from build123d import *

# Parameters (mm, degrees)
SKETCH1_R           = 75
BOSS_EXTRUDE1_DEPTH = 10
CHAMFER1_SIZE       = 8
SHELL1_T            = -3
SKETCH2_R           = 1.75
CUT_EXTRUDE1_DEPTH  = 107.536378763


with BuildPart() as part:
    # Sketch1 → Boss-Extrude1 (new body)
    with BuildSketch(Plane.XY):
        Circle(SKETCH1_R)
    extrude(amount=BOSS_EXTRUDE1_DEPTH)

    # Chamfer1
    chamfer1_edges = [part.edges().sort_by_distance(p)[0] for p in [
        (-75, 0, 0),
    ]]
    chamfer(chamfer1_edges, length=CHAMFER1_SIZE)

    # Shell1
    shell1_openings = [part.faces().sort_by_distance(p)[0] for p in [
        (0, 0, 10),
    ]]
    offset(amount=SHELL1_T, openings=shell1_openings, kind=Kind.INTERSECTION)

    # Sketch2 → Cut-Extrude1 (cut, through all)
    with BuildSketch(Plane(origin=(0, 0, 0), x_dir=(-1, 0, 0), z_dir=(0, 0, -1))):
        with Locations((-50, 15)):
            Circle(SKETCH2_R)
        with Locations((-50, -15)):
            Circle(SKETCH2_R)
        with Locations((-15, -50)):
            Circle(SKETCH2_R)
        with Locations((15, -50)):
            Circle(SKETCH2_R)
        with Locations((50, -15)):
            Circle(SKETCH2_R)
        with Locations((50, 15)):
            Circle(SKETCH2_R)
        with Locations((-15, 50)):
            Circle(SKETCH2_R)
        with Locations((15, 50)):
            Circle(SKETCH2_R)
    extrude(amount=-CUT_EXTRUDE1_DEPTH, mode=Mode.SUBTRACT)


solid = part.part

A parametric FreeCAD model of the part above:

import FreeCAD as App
import Part
import Sketcher

V = App.Vector
Q = App.Units.Quantity


def edges_at(feature, points):
    """Names of the edges that pass closest to the given points."""
    edges = feature.Shape.Edges
    near = lambda p: min(range(len(edges)), key=lambda i: edges[i].distToShape(Part.Vertex(*p))[0])
    return sorted({f"Edge{near(p) + 1}" for p in points})


def faces_at(feature, points):
    """Names of the faces that lie closest to the given points."""
    faces = feature.Shape.Faces
    near = lambda p: min(range(len(faces)), key=lambda i: faces[i].distToShape(Part.Vertex(*p))[0])
    return sorted({f"Face{near(p) + 1}" for p in points})

doc = App.newDocument("Part")
params = doc.addObject("Spreadsheet::Sheet", "Params")
for row, (alias, value) in enumerate([
    ("sketch1_diameter", "150 mm"),
    ("pad1_length", "10 mm"),
    ("chamfer_size", "8 mm"),
    ("thickness_wall", "3 mm"),
    ("sketch2_diameter", "3.5 mm"),
], start=1):
    params.set(f"A{row}", alias)
    params.set(f"B{row}", "=" + value)
    params.setAlias(f"B{row}", alias)

body = doc.addObject("PartDesign::Body", "Body")

sketch1 = body.newObject("Sketcher::SketchObject", "Sketch")
sketch1.AttachmentSupport = (doc.getObject("XY_Plane"), [""])
sketch1.MapMode = "FlatFace"
sketch1.addGeometry(Part.Circle(V(0, 0, 0), V(0, 0, 1), 75), False)
sketch1.addConstraint(Sketcher.Constraint("Coincident", 0, 3, -1, 1))
sketch1.addConstraint(Sketcher.Constraint("Diameter", 0, Q("150 mm")))
sketch1.setExpression("Constraints[1]", "Params.sketch1_diameter")
pad1 = body.newObject("PartDesign::Pad", "Pad")
pad1.Profile = sketch1
pad1.setExpression("Length", "Params.pad1_length")
doc.recompute()

chamfer = body.newObject("PartDesign::Chamfer", "Chamfer")
chamfer.Base = (pad1, edges_at(pad1, [(-75, 0, 0)]))
chamfer.setExpression("Size", "Params.chamfer_size")
doc.recompute()

thickness = body.newObject("PartDesign::Thickness", "Thickness")
thickness.Base = (chamfer, faces_at(chamfer, [(0, 0, 10)]))
thickness.setExpression("Value", "Params.thickness_wall")
thickness.Reversed = True
thickness.Join = "Intersection"

sketch2 = body.newObject("Sketcher::SketchObject", "Sketch001")
sketch2.AttachmentSupport = (doc.getObject("XY_Plane"), [""])
sketch2.MapMode = "FlatFace"
sketch2.addGeometry(Part.Circle(V(50, 15, 0), V(0, 0, 1), 1.75), False)
sketch2.addGeometry(Part.Circle(V(50, -15, 0), V(0, 0, 1), 1.75), False)
sketch2.addGeometry(Part.Circle(V(15, -50, 0), V(0, 0, 1), 1.75), False)
sketch2.addGeometry(Part.Circle(V(-15, -50, 0), V(0, 0, 1), 1.75), False)
sketch2.addGeometry(Part.Circle(V(-50, -15, 0), V(0, 0, 1), 1.75), False)
sketch2.addGeometry(Part.Circle(V(-50, 15, 0), V(0, 0, 1), 1.75), False)
sketch2.addGeometry(Part.Circle(V(15, 50, 0), V(0, 0, 1), 1.75), False)
sketch2.addGeometry(Part.Circle(V(-15, 50, 0), V(0, 0, 1), 1.75), False)
sketch2.addConstraint(Sketcher.Constraint("Equal", 0, 1))
sketch2.addConstraint(Sketcher.Constraint("Equal", 1, 2))
sketch2.addConstraint(Sketcher.Constraint("Equal", 2, 3))
sketch2.addConstraint(Sketcher.Constraint("Equal", 3, 4))
sketch2.addConstraint(Sketcher.Constraint("Equal", 4, 5))
sketch2.addConstraint(Sketcher.Constraint("Equal", 5, 6))
sketch2.addConstraint(Sketcher.Constraint("Equal", 6, 7))
sketch2.addConstraint(Sketcher.Constraint("Symmetric", 0, 3, 4, 3, -1, 1))
sketch2.addConstraint(Sketcher.Constraint("Symmetric", 1, 3, 5, 3, -1, 1))
sketch2.addConstraint(Sketcher.Constraint("Symmetric", 3, 3, 6, 3, -1, 1))
sketch2.addConstraint(Sketcher.Constraint("Symmetric", 2, 3, 7, 3, -1, 1))
sketch2.addConstraint(Sketcher.Constraint("Symmetric", 2, 3, 3, 3, -2))
sketch2.addConstraint(Sketcher.Constraint("Symmetric", 1, 3, 4, 3, -2))
sketch2.addConstraint(Sketcher.Constraint("Diameter", 0, Q("3.5 mm")))
sketch2.addConstraint(Sketcher.Constraint("DistanceX", -1, 1, 0, 3, Q("50 mm")))
sketch2.addConstraint(Sketcher.Constraint("DistanceY", -1, 1, 0, 3, Q("15 mm")))
sketch2.addConstraint(Sketcher.Constraint("DistanceX", -1, 1, 2, 3, Q("15 mm")))
sketch2.addConstraint(Sketcher.Constraint("DistanceY", 2, 3, -1, 1, Q("50 mm")))
sketch2.setExpression("Constraints[13]", "Params.sketch2_diameter")
pocket1 = body.newObject("PartDesign::Pocket", "Pocket")
pocket1.Profile = sketch2
pocket1.Type = "ThroughAll"
pocket1.Reversed = True

doc.recompute()
